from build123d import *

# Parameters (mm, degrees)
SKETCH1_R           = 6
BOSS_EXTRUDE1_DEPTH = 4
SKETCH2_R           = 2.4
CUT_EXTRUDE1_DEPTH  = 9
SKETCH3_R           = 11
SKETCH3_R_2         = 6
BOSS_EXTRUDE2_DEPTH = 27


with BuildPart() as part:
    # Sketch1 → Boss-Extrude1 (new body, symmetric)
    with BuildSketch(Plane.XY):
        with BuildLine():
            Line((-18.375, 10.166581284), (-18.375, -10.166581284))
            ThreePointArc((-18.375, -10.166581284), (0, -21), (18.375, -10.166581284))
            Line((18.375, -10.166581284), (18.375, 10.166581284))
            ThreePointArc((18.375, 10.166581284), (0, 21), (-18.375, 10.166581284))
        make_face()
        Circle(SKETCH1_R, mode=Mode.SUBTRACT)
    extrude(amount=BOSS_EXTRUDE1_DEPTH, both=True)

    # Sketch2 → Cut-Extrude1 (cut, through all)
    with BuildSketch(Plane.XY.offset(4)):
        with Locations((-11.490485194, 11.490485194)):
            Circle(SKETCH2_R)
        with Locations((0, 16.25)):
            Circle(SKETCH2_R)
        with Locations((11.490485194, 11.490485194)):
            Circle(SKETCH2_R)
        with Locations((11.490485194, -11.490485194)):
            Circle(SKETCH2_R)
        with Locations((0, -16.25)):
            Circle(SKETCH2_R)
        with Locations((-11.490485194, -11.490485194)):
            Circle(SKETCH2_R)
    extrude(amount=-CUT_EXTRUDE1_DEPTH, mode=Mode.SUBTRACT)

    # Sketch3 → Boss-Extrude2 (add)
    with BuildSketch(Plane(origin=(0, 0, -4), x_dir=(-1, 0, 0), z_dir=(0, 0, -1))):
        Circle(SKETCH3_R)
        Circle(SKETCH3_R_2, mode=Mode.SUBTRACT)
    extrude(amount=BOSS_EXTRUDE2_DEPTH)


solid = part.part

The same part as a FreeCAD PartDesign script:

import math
import FreeCAD as App
import Part
import Sketcher

V = App.Vector
Q = App.Units.Quantity

doc = App.newDocument("Part")
body = doc.addObject("PartDesign::Body", "Body")

sketch1 = doc.addObject("Sketcher::SketchObject", "Sketch")
body.addObject(sketch1)
sketch1.AttachmentSupport = (doc.XY_Plane, [""])
sketch1.MapMode = "FlatFace"
sketch1.addGeometry(Part.LineSegment(V(-18, 10, 0), V(-18, -10, 0)), False)
sketch1.addGeometry(Part.ArcOfCircle(Part.Circle(V(0, 0, 0), V(0, 0, 1), 21), math.radians(-151), math.radians(-29)), False)
sketch1.addGeometry(Part.LineSegment(V(18, -10, 0), V(18, 10, 0)), False)
sketch1.addGeometry(Part.ArcOfCircle(Part.Circle(V(0, 0, 0), V(0, 0, 1), 21), math.radians(29), math.radians(151)), False)
sketch1.addGeometry(Part.Circle(V(0, 0, 0), V(0, 0, 1), 6), False)
sketch1.addConstraint(Sketcher.Constraint("Coincident", 0, 2, 1, 1))
sketch1.addConstraint(Sketcher.Constraint("Coincident", 1, 2, 2, 1))
sketch1.addConstraint(Sketcher.Constraint("Coincident", 2, 2, 3, 1))
sketch1.addConstraint(Sketcher.Constraint("Coincident", 3, 2, 0, 1))
sketch1.addConstraint(Sketcher.Constraint("Vertical", 0))
sketch1.addConstraint(Sketcher.Constraint("Vertical", 2))
sketch1.addConstraint(Sketcher.Constraint("Coincident", 1, 3, -1, 1))
sketch1.addConstraint(Sketcher.Constraint("Coincident", 3, 3, -1, 1))
sketch1.addConstraint(Sketcher.Constraint("Coincident", 4, 3, -1, 1))
sketch1.addConstraint(Sketcher.Constraint("Equal", 1, 3))
sketch1.addConstraint(Sketcher.Constraint("Horizontal", 0, 2, 1, 2))
sketch1.addConstraint(Sketcher.Constraint("Diameter", 4, Q("12 mm")))
sketch1.addConstraint(Sketcher.Constraint("Radius", 1, Q("21 mm")))
sketch1.addConstraint(Sketcher.Constraint("DistanceX", 0, 2, 1, 2, Q("36.75 mm")))
pad1 = doc.addObject("PartDesign::Pad", "Pad")
body.addObject(pad1)
pad1.Profile = sketch1
pad1.Length = 8
pad1.Midplane = True

sketch2 = doc.addObject("Sketcher::SketchObject", "Sketch001")
body.addObject(sketch2)
sketch2.AttachmentSupport = (doc.XY_Plane, [""])
sketch2.MapMode = "FlatFace"
sketch2.AttachmentOffset = App.Placement(V(0, 0, 4), App.Rotation())
sketch2.addGeometry(Part.Circle(V(-11.5, 11.5, 0), V(0, 0, 1), 2.4), False)
sketch2.addGeometry(Part.Circle(V(0, 16.2, 0), V(0, 0, 1), 2.4), False)
sketch2.addGeometry(Part.Circle(V(11.5, 11.5, 0), V(0, 0, 1), 2.4), False)
sketch2.addGeometry(Part.Circle(V(11.5, -11.5, 0), V(0, 0, 1), 2.4), False)
sketch2.addGeometry(Part.Circle(V(0, -16.2, 0), V(0, 0, 1), 2.4), False)
sketch2.addGeometry(Part.Circle(V(-11.5, -11.5, 0), V(0, 0, 1), 2.4), False)
sketch2.addConstraint(Sketcher.Constraint("Equal", 0, 1))
sketch2.addConstraint(Sketcher.Constraint("Equal", 1, 2))
sketch2.addConstraint(Sketcher.Constraint("Equal", 2, 3))
sketch2.addConstraint(Sketcher.Constraint("Equal", 3, 4))
sketch2.addConstraint(Sketcher.Constraint("Equal", 4, 5))
sketch2.addConstraint(Sketcher.Constraint("Symmetric", 0, 3, 3, 3, -1, 1))
sketch2.addConstraint(Sketcher.Constraint("Symmetric", 1, 3, 4, 3, -1, 1))
sketch2.addConstraint(Sketcher.Constraint("Symmetric", 2, 3, 5, 3, -1, 1))
sketch2.addConstraint(Sketcher.Constraint("Symmetric", 0, 3, 2, 3, -2))
sketch2.addConstraint(Sketcher.Constraint("PointOnObject", 1, 3, -2))
sketch2.addConstraint(Sketcher.Constraint("Diameter", 0, Q("4.8 mm")))
sketch2.addConstraint(Sketcher.Constraint("DistanceY", 4, 3, 1, 3, Q("32.5 mm")))
sketch2.addConstraint(Sketcher.Constraint("DistanceX", 0, 3, 2, 3, Q("22.98097 mm")))
sketch2.addConstraint(Sketcher.Constraint("DistanceY", 3, 3, 2, 3, Q("22.98097 mm")))
pocket1 = doc.addObject("PartDesign::Pocket", "Pocket")
body.addObject(pocket1)
pocket1.Profile = sketch2
pocket1.Type = "ThroughAll"

sketch3 = doc.addObject("Sketcher::SketchObject", "Sketch002")
body.addObject(sketch3)
sketch3.AttachmentSupport = (doc.XY_Plane, [""])
sketch3.MapMode = "FlatFace"
sketch3.AttachmentOffset = App.Placement(V(0, 0, -4), App.Rotation())
sketch3.addGeometry(Part.Circle(V(0, 0, 0), V(0, 0, 1), 11), False)
sketch3.addGeometry(Part.Circle(V(0, 0, 0), V(0, 0, 1), 6), False)
sketch3.addConstraint(Sketcher.Constraint("Coincident", 0, 3, -1, 1))
sketch3.addConstraint(Sketcher.Constraint("Coincident", 1, 3, -1, 1))
sketch3.addConstraint(Sketcher.Constraint("Diameter", 0, Q("22 mm")))
sketch3.addConstraint(Sketcher.Constraint("Diameter", 1, Q("12 mm")))
pad2 = doc.addObject("PartDesign::Pad", "Pad001")
body.addObject(pad2)
pad2.Profile = sketch3
pad2.Length = 27
pad2.Reversed = True

doc.recompute()
